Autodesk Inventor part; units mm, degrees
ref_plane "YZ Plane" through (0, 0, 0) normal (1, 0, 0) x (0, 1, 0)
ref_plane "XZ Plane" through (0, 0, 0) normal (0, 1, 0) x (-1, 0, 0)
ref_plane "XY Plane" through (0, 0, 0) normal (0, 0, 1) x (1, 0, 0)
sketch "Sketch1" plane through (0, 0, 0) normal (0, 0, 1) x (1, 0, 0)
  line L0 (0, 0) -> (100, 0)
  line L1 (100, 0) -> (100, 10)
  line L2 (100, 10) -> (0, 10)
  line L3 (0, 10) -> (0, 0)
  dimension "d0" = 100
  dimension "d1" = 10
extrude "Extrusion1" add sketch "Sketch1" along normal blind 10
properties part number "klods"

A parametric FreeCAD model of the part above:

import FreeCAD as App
import Part
import Sketcher

V = App.Vector
Q = App.Units.Quantity


def add_polygon(sketch, points):
    """Adds a closed chain of lines whose ends are joined by coincident constraints."""
    first, n = sketch.GeometryCount, len(points)
    for a, b in zip(points, points[1:] + points[:1]):
        sketch.addGeometry(Part.LineSegment(App.Vector(*a, 0), App.Vector(*b, 0)), False)
    for i in range(n):
        sketch.addConstraint(Sketcher.Constraint("Coincident", first + i, 2, first + (i + 1) % n, 1))

doc = App.newDocument("Part")
body = doc.addObject("PartDesign::Body", "Body")

# Sketch on XY plane
sketch1 = doc.addObject("Sketcher::SketchObject", "Sketch")
body.addObject(sketch1)
sketch1.AttachmentSupport = (doc.XY_Plane, [""])
sketch1.MapMode = "FlatFace"
add_polygon(sketch1, [(0, 10), (0, 0), (100, 0), (100, 10)])  # lines 0-3
sketch1.addConstraint([
    Sketcher.Constraint("Vertical", 0),
    Sketcher.Constraint("Horizontal", 1),
    Sketcher.Constraint("Vertical", 2),
    Sketcher.Constraint("Horizontal", 3),
    Sketcher.Constraint("Coincident", 0, 2, -1, 1),
    Sketcher.Constraint("DistanceX", 1, 1, 1, 2, Q("3.937 in")),
    Sketcher.Constraint("DistanceY", 0, 2, 0, 1, Q("0.3937 in")),
])
pad1 = doc.addObject("PartDesign::Pad", "Pad")
body.addObject(pad1)
pad1.Profile = sketch1
pad1.Length = Q("0.3937008 in")

doc.recompute()
